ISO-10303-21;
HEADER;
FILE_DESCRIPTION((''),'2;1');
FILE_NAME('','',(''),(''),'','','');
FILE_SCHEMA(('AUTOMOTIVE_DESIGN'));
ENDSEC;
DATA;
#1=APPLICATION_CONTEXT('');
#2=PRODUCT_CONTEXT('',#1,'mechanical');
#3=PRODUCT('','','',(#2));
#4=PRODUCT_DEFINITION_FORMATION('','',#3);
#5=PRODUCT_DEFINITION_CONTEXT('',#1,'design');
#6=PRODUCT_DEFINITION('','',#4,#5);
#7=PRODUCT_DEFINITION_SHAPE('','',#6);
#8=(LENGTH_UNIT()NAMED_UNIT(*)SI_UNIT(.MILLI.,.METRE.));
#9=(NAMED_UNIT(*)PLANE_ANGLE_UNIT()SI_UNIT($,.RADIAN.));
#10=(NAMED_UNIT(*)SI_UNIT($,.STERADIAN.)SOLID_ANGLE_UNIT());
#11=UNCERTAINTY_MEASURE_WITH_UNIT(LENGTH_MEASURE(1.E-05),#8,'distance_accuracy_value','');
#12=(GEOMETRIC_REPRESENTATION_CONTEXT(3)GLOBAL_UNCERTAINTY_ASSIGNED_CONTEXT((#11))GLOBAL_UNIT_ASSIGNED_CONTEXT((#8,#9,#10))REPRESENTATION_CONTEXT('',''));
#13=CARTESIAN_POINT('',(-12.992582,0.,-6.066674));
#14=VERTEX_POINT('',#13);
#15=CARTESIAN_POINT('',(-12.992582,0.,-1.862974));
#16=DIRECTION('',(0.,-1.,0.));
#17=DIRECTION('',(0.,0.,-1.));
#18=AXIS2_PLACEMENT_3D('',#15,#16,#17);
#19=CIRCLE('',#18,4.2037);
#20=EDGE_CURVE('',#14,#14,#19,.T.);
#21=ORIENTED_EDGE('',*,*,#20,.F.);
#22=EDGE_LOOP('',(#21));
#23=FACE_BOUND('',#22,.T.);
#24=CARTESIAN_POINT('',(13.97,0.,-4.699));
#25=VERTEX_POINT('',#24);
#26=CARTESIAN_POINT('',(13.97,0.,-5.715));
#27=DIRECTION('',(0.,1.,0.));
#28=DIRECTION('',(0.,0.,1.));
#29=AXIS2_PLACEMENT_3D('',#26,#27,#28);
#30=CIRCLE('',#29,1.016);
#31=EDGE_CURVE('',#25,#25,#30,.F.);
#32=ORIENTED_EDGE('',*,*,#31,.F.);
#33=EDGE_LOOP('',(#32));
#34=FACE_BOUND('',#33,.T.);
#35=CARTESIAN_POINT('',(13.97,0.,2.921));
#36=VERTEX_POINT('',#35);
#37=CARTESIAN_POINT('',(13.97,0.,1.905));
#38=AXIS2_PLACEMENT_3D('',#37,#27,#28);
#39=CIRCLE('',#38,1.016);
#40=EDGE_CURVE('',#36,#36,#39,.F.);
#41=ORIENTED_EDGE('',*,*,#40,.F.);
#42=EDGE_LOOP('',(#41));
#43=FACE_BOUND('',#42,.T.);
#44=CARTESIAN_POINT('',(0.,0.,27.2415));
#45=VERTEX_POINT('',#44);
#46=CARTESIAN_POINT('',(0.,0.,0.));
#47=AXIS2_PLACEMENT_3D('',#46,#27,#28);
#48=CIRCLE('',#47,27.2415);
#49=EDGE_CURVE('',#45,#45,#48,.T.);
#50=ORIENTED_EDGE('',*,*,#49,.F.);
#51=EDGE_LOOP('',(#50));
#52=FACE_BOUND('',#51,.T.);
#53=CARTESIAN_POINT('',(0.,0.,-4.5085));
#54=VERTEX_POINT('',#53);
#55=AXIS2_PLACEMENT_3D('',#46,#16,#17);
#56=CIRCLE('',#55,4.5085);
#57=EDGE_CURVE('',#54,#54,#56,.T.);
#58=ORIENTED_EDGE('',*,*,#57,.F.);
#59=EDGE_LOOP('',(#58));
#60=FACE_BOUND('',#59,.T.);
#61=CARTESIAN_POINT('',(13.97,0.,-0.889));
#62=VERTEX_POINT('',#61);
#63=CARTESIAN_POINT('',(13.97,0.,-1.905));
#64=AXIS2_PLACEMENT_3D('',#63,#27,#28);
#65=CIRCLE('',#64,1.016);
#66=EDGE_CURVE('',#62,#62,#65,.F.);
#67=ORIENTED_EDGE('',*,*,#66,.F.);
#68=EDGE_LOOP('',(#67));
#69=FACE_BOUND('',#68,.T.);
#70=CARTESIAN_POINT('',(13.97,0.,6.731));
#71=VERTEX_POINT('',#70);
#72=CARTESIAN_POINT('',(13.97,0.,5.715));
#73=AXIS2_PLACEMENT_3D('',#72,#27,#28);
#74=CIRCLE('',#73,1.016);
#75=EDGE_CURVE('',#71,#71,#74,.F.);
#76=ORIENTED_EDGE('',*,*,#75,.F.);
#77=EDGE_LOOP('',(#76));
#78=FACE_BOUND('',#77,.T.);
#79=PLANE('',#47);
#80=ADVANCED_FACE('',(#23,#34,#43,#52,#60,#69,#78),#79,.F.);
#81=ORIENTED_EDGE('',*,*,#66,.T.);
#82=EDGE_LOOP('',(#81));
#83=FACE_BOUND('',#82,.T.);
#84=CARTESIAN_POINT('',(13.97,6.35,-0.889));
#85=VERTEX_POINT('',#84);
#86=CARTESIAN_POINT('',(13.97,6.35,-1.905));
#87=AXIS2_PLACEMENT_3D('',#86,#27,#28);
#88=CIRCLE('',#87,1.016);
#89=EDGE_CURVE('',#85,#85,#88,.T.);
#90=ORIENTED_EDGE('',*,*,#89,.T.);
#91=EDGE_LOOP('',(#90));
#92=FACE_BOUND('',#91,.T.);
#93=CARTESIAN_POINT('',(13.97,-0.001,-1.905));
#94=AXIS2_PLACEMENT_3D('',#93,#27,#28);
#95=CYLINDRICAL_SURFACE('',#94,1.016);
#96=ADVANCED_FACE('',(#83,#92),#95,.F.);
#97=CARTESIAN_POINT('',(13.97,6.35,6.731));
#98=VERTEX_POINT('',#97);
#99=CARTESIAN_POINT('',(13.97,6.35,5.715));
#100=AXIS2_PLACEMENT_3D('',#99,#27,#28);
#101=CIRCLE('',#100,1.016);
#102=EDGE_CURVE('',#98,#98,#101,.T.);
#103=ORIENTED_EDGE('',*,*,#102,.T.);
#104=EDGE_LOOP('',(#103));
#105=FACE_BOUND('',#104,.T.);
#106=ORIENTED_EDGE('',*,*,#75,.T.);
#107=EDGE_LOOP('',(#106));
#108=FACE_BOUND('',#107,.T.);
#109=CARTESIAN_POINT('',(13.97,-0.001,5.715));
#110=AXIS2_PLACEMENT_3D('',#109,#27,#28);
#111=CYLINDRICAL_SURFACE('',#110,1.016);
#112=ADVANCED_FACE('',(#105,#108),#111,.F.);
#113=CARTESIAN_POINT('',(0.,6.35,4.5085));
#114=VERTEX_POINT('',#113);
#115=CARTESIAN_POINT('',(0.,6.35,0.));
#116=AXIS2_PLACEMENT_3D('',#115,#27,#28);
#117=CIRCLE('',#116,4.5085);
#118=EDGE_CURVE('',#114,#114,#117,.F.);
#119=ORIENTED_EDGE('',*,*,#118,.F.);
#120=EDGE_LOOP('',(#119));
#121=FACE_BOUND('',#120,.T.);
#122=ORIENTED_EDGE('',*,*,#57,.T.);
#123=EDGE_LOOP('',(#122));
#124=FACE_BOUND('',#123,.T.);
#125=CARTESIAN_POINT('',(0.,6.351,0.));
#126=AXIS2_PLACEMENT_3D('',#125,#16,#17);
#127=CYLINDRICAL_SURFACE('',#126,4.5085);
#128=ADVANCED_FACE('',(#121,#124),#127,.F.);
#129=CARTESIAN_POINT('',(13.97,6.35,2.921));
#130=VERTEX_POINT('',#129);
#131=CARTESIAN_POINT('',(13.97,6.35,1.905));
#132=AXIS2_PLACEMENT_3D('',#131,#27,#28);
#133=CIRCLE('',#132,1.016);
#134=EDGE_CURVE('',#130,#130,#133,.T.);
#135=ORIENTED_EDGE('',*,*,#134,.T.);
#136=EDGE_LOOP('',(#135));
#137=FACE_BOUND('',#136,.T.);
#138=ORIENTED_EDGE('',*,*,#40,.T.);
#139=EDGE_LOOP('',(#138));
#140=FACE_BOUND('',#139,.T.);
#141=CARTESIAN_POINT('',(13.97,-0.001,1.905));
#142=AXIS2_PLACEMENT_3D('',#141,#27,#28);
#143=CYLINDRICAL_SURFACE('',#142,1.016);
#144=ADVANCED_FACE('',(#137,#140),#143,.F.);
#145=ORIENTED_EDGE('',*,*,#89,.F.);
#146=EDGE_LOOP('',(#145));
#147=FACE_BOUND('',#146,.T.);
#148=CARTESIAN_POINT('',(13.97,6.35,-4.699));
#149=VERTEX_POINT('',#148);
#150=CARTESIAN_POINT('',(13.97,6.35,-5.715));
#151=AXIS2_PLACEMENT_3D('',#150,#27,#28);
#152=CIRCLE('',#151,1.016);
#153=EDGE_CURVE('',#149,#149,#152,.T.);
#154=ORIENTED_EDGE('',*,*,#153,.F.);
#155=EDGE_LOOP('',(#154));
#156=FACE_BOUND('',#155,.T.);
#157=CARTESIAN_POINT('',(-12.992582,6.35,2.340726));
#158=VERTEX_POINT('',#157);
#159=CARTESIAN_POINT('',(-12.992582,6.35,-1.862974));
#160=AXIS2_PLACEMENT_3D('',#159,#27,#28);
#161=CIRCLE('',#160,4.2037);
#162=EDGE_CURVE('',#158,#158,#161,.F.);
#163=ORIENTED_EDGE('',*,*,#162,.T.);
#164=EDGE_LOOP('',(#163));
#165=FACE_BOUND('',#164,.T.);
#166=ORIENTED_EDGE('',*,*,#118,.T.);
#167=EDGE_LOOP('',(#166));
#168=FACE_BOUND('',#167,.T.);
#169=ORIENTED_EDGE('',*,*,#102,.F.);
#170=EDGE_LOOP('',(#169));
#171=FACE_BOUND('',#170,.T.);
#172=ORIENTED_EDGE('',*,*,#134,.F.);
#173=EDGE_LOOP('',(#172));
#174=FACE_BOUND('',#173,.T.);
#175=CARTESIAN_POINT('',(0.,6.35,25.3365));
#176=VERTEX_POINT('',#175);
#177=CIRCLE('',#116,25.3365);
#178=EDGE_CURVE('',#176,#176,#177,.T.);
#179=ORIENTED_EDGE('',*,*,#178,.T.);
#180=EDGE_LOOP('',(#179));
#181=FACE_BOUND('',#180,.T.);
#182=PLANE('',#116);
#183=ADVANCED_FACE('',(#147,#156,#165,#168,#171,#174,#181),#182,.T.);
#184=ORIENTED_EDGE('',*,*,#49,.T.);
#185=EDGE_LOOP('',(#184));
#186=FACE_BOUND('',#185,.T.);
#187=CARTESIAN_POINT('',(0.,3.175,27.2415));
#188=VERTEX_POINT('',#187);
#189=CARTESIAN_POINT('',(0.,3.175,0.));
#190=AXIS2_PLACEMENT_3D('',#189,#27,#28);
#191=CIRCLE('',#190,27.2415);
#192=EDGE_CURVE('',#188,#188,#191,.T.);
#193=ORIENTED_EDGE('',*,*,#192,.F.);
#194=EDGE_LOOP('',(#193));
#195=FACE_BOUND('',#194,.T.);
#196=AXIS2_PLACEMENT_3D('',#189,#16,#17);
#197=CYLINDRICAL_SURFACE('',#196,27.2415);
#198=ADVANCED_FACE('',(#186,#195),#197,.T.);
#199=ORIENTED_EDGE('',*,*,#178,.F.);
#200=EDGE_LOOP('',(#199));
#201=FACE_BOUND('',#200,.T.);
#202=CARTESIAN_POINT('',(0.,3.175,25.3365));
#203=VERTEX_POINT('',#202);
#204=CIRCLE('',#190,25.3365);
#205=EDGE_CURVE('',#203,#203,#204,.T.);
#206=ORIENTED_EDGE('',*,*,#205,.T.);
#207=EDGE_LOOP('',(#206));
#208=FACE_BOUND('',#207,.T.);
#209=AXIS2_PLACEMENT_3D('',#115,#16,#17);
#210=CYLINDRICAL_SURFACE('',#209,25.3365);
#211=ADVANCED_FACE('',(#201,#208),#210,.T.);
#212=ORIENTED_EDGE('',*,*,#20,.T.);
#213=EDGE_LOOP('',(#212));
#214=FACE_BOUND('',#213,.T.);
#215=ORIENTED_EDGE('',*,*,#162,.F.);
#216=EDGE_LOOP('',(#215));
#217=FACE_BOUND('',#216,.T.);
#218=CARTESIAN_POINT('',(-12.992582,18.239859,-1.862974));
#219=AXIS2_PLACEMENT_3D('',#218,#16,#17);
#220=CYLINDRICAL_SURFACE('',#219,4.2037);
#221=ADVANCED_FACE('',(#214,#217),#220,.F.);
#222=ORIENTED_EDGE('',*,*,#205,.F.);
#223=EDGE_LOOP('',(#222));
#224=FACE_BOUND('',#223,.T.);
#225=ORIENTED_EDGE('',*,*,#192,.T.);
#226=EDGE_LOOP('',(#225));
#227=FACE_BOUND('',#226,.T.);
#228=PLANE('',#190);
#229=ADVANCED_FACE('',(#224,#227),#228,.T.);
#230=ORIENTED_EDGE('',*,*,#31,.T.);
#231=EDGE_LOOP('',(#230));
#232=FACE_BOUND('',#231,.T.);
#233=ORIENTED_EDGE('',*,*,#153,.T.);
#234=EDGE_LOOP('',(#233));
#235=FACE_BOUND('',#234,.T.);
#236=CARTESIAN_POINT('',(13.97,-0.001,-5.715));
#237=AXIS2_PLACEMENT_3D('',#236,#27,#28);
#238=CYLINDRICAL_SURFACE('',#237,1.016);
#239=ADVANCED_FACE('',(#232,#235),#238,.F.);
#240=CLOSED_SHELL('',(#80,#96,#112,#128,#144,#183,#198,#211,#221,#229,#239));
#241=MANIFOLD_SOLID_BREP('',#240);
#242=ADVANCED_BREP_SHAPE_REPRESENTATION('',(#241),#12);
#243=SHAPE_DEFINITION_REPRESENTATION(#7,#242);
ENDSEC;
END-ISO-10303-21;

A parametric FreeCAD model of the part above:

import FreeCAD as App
import Part
import Sketcher

V = App.Vector
Q = App.Units.Quantity

doc = App.newDocument("Part")
params = doc.addObject("Spreadsheet::Sheet", "Params")
for row, (alias, value) in enumerate([
    ("sketch1_diameter", "2.145 in"),
    ("pad1_length", "0.125 in"),
    ("sketch2_diameter", "1.995 in"),
    ("pad2_length", "0.125 in"),
    ("sketch3_diameter", "0.331 in"),
    ("pocket1_length", "0.25 in"),
    ("sketch4_diameter", "0.355 in"),
    ("sketch5_diameter", "0.08 in"),
    ("sketch6_diameter", "0.08 in"),
    ("sketch7_diameter", "0.08 in"),
    ("sketch8_diameter", "0.08 in"),
], start=1):
    params.set(f"A{row}", alias)
    params.set(f"B{row}", "=" + value)
    params.setAlias(f"B{row}", alias)

body = doc.addObject("PartDesign::Body", "Body")

# Sketch on XZ plane
sketch1 = body.newObject("Sketcher::SketchObject", "Sketch")
sketch1.AttachmentSupport = (doc.getObject("XZ_Plane"), [""])
sketch1.MapMode = "FlatFace"
sketch1.addGeometry(Part.Circle(V(0, 0, 0), V(0, 0, 1), 27), False)
sketch1.addConstraint(Sketcher.Constraint("Coincident", 0, 3, -1, 1))
sketch1.addConstraint(Sketcher.Constraint("Diameter", 0, Q("2.145 in")))
sketch1.setExpression("Constraints[1]", "Params.sketch1_diameter")
pad1 = body.newObject("PartDesign::Pad", "Pad")
pad1.Profile = sketch1
pad1.setExpression("Length", "Params.pad1_length")
pad1.Reversed = True

# Sketch on XZ plane
sketch2 = body.newObject("Sketcher::SketchObject", "Sketch001")
sketch2.AttachmentSupport = (doc.getObject("XZ_Plane"), [""])
sketch2.MapMode = "FlatFace"
sketch2.AttachmentOffset = App.Placement(V(0, 0, -0.125 * 25.4), App.Rotation())
sketch2.addGeometry(Part.Circle(V(0, 0, 0), V(0, 0, 1), 25), False)
sketch2.addConstraint(Sketcher.Constraint("Coincident", 0, 3, -1, 1))
sketch2.addConstraint(Sketcher.Constraint("Diameter", 0, Q("1.995 in")))
sketch2.setExpression("Constraints[1]", "Params.sketch2_diameter")
pad2 = body.newObject("PartDesign::Pad", "Pad001")
pad2.Profile = sketch2
pad2.setExpression("Length", "Params.pad2_length")
pad2.Reversed = True

# Sketch on XZ plane
sketch3 = body.newObject("Sketcher::SketchObject", "Sketch002")
sketch3.AttachmentSupport = (doc.getObject("XZ_Plane"), [""])
sketch3.MapMode = "FlatFace"
sketch3.addGeometry(Part.Circle(V(-13, -1.9, 0), V(0, 0, 1), 4.2), False)
sketch3.addConstraint(Sketcher.Constraint("Diameter", 0, Q("0.331 in")))
sketch3.addConstraint(Sketcher.Constraint("DistanceX", 0, 3, -1, 1, 12.992582))
sketch3.addConstraint(Sketcher.Constraint("DistanceY", 0, 3, -1, 1, 1.862974))
sketch3.setExpression("Constraints[0]", "Params.sketch3_diameter")
pocket1 = body.newObject("PartDesign::Pocket", "Pocket")
pocket1.Profile = sketch3
pocket1.setExpression("Length", "Params.pocket1_length")

# Sketch on XZ plane
sketch4 = body.newObject("Sketcher::SketchObject", "Sketch003")
sketch4.AttachmentSupport = (doc.getObject("XZ_Plane"), [""])
sketch4.MapMode = "FlatFace"
sketch4.addGeometry(Part.Circle(V(0, 0, 0), V(0, 0, 1), 4.5), False)
sketch4.addConstraint(Sketcher.Constraint("Coincident", 0, 3, -1, 1))
sketch4.addConstraint(Sketcher.Constraint("Diameter", 0, Q("0.355 in")))
sketch4.setExpression("Constraints[1]", "Params.sketch4_diameter")
pocket2 = body.newObject("PartDesign::Pocket", "Pocket001")
pocket2.Profile = sketch4
pocket2.Type = "UpToFirst"

# Sketch on XZ plane
sketch5 = body.newObject("Sketcher::SketchObject", "Sketch004")
sketch5.AttachmentSupport = (doc.getObject("XZ_Plane"), [""])
sketch5.MapMode = "FlatFace"
sketch5.AttachmentOffset = App.Placement(V(0, 0, -0.25 * 25.4), App.Rotation())
sketch5.addGeometry(Part.Circle(V(14, -5.7, 0), V(0, 0, 1), 1), False)
sketch5.addConstraint(Sketcher.Constraint("Diameter", 0, Q("0.08 in")))
sketch5.addConstraint(Sketcher.Constraint("DistanceX", -1, 1, 0, 3, Q("0.55 in")))
sketch5.addConstraint(Sketcher.Constraint("DistanceY", 0, 3, -1, 1, Q("0.225 in")))
sketch5.setExpression("Constraints[0]", "Params.sketch5_diameter")
pocket3 = body.newObject("PartDesign::Pocket", "Pocket002")
pocket3.Profile = sketch5
pocket3.Type = "UpToFirst"
pocket3.Reversed = True

# Sketch on XZ plane
sketch6 = body.newObject("Sketcher::SketchObject", "Sketch005")
sketch6.AttachmentSupport = (doc.getObject("XZ_Plane"), [""])
sketch6.MapMode = "FlatFace"
sketch6.AttachmentOffset = App.Placement(V(0, 0, -0.25 * 25.4), App.Rotation())
sketch6.addGeometry(Part.Circle(V(14, -1.9, 0), V(0, 0, 1), 1), False)
sketch6.addConstraint(Sketcher.Constraint("Diameter", 0, Q("0.08 in")))
sketch6.addConstraint(Sketcher.Constraint("DistanceX", -1, 1, 0, 3, Q("0.55 in")))
sketch6.addConstraint(Sketcher.Constraint("DistanceY", 0, 3, -1, 1, Q("0.075 in")))
sketch6.setExpression("Constraints[0]", "Params.sketch6_diameter")
pocket4 = body.newObject("PartDesign::Pocket", "Pocket003")
pocket4.Profile = sketch6
pocket4.Type = "UpToFirst"
pocket4.Reversed = True

# Sketch on XZ plane
sketch7 = body.newObject("Sketcher::SketchObject", "Sketch006")
sketch7.AttachmentSupport = (doc.getObject("XZ_Plane"), [""])
sketch7.MapMode = "FlatFace"
sketch7.AttachmentOffset = App.Placement(V(0, 0, -0.25 * 25.4), App.Rotation())
sketch7.addGeometry(Part.Circle(V(14, 1.9, 0), V(0, 0, 1), 1), False)
sketch7.addConstraint(Sketcher.Constraint("Diameter", 0, Q("0.08 in")))
sketch7.addConstraint(Sketcher.Constraint("DistanceX", -1, 1, 0, 3, Q("0.55 in")))
sketch7.addConstraint(Sketcher.Constraint("DistanceY", -1, 1, 0, 3, Q("0.075 in")))
sketch7.setExpression("Constraints[0]", "Params.sketch7_diameter")
pocket5 = body.newObject("PartDesign::Pocket", "Pocket004")
pocket5.Profile = sketch7
pocket5.Type = "UpToFirst"
pocket5.Reversed = True

# Sketch on XZ plane
sketch8 = body.newObject("Sketcher::SketchObject", "Sketch007")
sketch8.AttachmentSupport = (doc.getObject("XZ_Plane"), [""])
sketch8.MapMode = "FlatFace"
sketch8.AttachmentOffset = App.Placement(V(0, 0, -0.25 * 25.4), App.Rotation())
sketch8.addGeometry(Part.Circle(V(14, 5.7, 0), V(0, 0, 1), 1), False)
sketch8.addConstraint(Sketcher.Constraint("Diameter", 0, Q("0.08 in")))
sketch8.addConstraint(Sketcher.Constraint("DistanceX", -1, 1, 0, 3, Q("0.55 in")))
sketch8.addConstraint(Sketcher.Constraint("DistanceY", -1, 1, 0, 3, Q("0.225 in")))
sketch8.setExpression("Constraints[0]", "Params.sketch8_diameter")
pocket6 = body.newObject("PartDesign::Pocket", "Pocket005")
pocket6.Profile = sketch8
pocket6.Type = "UpToFirst"
pocket6.Reversed = True

doc.recompute()
